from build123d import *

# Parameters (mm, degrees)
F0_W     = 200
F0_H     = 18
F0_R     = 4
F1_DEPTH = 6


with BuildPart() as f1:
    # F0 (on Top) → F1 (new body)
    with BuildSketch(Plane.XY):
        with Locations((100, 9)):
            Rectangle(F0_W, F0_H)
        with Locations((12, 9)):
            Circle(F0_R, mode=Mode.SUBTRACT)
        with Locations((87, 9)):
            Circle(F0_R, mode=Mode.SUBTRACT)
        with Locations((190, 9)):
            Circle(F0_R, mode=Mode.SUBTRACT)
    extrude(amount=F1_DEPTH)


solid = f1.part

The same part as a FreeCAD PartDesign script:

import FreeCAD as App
import Part
import Sketcher


def add_polygon(sketch, points):
    """Adds a closed chain of lines whose ends are joined by coincident constraints."""
    first, n = sketch.GeometryCount, len(points)
    for a, b in zip(points, points[1:] + points[:1]):
        sketch.addGeometry(Part.LineSegment(App.Vector(*a, 0), App.Vector(*b, 0)), False)
    for i in range(n):
        sketch.addConstraint(Sketcher.Constraint("Coincident", first + i, 2, first + (i + 1) % n, 1))

doc = App.newDocument("Part")
body = doc.addObject("PartDesign::Body", "Body")

# Sketch on XY plane
sketch1 = body.newObject("Sketcher::SketchObject", "Sketch")
sketch1.AttachmentSupport = (doc.getObject("XY_Plane"), [""])
sketch1.MapMode = "FlatFace"
add_polygon(sketch1, [(0, 18), (0, 0), (200, 0), (200, 18)])  # lines 0-3
sketch1.addGeometry(Part.Circle(App.Vector(12, 9, 0), App.Vector(0, 0, 1), 4), False)  # 4
sketch1.addGeometry(Part.Circle(App.Vector(87, 9, 0), App.Vector(0, 0, 1), 4), False)  # 5
sketch1.addGeometry(Part.Circle(App.Vector(190, 9, 0), App.Vector(0, 0, 1), 4), False)  # 6
sketch1.addConstraint([
    Sketcher.Constraint("Vertical", 0),
    Sketcher.Constraint("Horizontal", 1),
    Sketcher.Constraint("Vertical", 2),
    Sketcher.Constraint("Horizontal", 3),
    Sketcher.Constraint("Coincident", 0, 2, -1, 1),
    Sketcher.Constraint("Equal", 4, 5),
    Sketcher.Constraint("Equal", 5, 6),
    Sketcher.Constraint("Horizontal", 4, 3, 5, 3),
    Sketcher.Constraint("Horizontal", 5, 3, 6, 3),
    Sketcher.Constraint("Diameter", 4, 8.0),
    Sketcher.Constraint("DistanceX", 1, 1, 1, 2, 200.0),
    Sketcher.Constraint("DistanceY", 0, 2, 0, 1, 18.0),
    Sketcher.Constraint("DistanceX", -1, 1, 4, 3, 12.0),
    Sketcher.Constraint("DistanceY", -1, 1, 4, 3, 9.0),
    Sketcher.Constraint("DistanceX", -1, 1, 5, 3, 87.0),
    Sketcher.Constraint("DistanceX", -1, 1, 6, 3, 190.0),
])
pad1 = body.newObject("PartDesign::Pad", "Pad")
pad1.Profile = sketch1
pad1.Length = 6

doc.recompute()
